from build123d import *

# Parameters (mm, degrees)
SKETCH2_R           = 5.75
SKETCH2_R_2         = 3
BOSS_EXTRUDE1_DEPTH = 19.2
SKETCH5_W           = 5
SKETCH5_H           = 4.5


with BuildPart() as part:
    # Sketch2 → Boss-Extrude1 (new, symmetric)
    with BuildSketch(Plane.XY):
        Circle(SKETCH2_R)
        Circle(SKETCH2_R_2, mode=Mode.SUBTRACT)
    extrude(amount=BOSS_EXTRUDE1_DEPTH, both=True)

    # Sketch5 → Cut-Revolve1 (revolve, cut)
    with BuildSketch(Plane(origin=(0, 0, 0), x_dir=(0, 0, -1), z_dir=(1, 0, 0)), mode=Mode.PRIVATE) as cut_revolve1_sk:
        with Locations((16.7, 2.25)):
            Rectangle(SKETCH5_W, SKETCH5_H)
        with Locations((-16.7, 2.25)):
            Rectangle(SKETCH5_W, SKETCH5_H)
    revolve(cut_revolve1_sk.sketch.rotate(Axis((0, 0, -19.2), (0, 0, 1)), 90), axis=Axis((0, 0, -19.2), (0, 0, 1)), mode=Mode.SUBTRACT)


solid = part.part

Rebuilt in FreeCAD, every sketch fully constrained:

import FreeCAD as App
import Part
import Sketcher
from FreeCAD import Vector
Q = App.Units.Quantity


def add_polygon(sketch, points):
    """Adds a closed chain of lines whose ends are joined by coincident constraints."""
    first, n = sketch.GeometryCount, len(points)
    for a, b in zip(points, points[1:] + points[:1]):
        sketch.addGeometry(Part.LineSegment(App.Vector(*a, 0), App.Vector(*b, 0)), False)
    for i in range(n):
        sketch.addConstraint(Sketcher.Constraint("Coincident", first + i, 2, first + (i + 1) % n, 1))

doc = App.newDocument("Part")
body = doc.addObject("PartDesign::Body", "Body")

sketch1 = doc.addObject("Sketcher::SketchObject", "Sketch")
body.addObject(sketch1)
sketch1.AttachmentSupport = (doc.XY_Plane, [""])
sketch1.MapMode = "FlatFace"
sketch1.addGeometry([
    Part.Circle(Vector(0, 0, 0), Vector(0, 0, 1), 5.75),
    Part.Circle(Vector(0, 0, 0), Vector(0, 0, 1), 3),
], False)
sketch1.addConstraint([
    Sketcher.Constraint("Coincident", 0, 3, -1, 1),
    Sketcher.Constraint("Coincident", 1, 3, -1, 1),
    Sketcher.Constraint("Diameter", 1, Q("6 mm")),
    Sketcher.Constraint("Diameter", 0, Q("11.5 mm")),
])
pad1 = doc.addObject("PartDesign::Pad", "Pad")
body.addObject(pad1)
pad1.Profile = sketch1
pad1.Length = 38.4
pad1.Midplane = True

sketch2 = doc.addObject("Sketcher::SketchObject", "Sketch001")
body.addObject(sketch2)
sketch2.AttachmentSupport = (doc.YZ_Plane, [""])
sketch2.MapMode = "FlatFace"
add_polygon(sketch2, [(4.5, -14.2), (0, -14.2), (0, -19.2), (4.5, -19.2)])
add_polygon(sketch2, [(4.5, 19.2), (0, 19.2), (0, 14.2), (4.5, 14.2)])
sketch2.addConstraint([
    Sketcher.Constraint("Horizontal", 0),
    Sketcher.Constraint("Vertical", 1),
    Sketcher.Constraint("Horizontal", 2),
    Sketcher.Constraint("Vertical", 3),
    Sketcher.Constraint("Horizontal", 4),
    Sketcher.Constraint("Vertical", 5),
    Sketcher.Constraint("Horizontal", 6),
    Sketcher.Constraint("Vertical", 7),
    Sketcher.Constraint("Symmetric", 1, 2, 4, 2, -1, 1),
    Sketcher.Constraint("Symmetric", 0, 2, 5, 2, -1),
    Sketcher.Constraint("Vertical", 3, 2, 6, 2),
    Sketcher.Constraint("DistanceY", 1, 2, 1, 1, Q("5 mm")),
    Sketcher.Constraint("DistanceX", 0, 2, 0, 1, Q("4.5 mm")),
    Sketcher.Constraint("DistanceY", 0, 2, -1, 1, Q("14.2 mm")),
])
groove = doc.addObject("PartDesign::Groove", "Groove")
body.addObject(groove)
groove.Profile = sketch2
groove.ReferenceAxis = (sketch2, ["V_Axis"])
groove.Angle = 360

doc.recompute()
